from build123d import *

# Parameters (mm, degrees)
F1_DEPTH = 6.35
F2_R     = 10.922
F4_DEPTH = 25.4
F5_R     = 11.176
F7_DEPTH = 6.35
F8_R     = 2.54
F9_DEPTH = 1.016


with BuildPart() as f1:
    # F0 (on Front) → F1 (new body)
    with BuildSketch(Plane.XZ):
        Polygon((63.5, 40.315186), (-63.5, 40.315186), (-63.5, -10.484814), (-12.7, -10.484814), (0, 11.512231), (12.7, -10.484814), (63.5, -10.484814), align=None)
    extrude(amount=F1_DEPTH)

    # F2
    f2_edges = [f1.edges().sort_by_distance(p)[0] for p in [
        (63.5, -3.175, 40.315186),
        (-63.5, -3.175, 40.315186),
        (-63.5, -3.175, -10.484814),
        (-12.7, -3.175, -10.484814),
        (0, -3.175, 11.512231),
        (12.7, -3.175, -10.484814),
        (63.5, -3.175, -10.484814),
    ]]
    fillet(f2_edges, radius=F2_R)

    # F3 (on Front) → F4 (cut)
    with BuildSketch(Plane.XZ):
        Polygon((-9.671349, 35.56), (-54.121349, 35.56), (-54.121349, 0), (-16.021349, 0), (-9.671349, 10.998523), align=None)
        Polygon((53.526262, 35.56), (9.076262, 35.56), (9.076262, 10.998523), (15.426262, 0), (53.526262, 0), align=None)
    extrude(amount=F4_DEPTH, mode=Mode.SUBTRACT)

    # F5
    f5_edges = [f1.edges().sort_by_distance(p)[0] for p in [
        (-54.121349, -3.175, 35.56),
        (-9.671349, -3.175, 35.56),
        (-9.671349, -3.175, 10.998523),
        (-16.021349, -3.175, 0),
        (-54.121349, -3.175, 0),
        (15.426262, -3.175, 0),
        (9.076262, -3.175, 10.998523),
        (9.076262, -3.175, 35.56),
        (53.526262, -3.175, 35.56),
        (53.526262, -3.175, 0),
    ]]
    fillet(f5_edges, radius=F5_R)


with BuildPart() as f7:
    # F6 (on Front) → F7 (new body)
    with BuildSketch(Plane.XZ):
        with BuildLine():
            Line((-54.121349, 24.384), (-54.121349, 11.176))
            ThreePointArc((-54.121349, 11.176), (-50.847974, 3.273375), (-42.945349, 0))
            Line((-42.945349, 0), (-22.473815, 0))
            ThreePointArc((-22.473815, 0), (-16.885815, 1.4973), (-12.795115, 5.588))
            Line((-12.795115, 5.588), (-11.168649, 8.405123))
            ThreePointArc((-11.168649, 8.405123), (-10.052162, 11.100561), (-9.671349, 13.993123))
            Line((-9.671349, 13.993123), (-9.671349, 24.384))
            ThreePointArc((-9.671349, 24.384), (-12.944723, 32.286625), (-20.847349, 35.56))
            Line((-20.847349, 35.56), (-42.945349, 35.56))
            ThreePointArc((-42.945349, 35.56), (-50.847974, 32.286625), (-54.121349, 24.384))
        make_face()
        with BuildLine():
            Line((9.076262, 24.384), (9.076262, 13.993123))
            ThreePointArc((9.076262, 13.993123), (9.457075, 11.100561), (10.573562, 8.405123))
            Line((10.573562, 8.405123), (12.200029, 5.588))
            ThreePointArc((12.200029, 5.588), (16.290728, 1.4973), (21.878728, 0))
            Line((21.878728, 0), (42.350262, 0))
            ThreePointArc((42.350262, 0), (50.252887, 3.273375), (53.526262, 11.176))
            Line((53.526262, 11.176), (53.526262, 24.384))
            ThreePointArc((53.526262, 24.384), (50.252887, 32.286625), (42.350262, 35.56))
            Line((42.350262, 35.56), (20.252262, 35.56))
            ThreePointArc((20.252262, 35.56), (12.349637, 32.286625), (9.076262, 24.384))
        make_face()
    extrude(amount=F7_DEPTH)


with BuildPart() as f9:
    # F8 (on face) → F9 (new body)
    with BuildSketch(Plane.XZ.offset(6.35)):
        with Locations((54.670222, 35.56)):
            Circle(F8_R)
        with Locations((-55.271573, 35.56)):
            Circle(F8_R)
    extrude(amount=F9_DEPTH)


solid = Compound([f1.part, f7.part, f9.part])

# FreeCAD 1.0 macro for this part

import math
import FreeCAD as App
import Part
import Sketcher
from FreeCAD import Vector
Q = App.Units.Quantity


def edges_at(feature, points):
    """Names of the edges that pass closest to the given points."""
    edges = feature.Shape.Edges
    near = lambda p: min(range(len(edges)), key=lambda i: edges[i].distToShape(Part.Vertex(*p))[0])
    return sorted({f"Edge{near(p) + 1}" for p in points})


def add_polygon(sketch, points):
    """Adds a closed chain of lines whose ends are joined by coincident constraints."""
    first, n = sketch.GeometryCount, len(points)
    for a, b in zip(points, points[1:] + points[:1]):
        sketch.addGeometry(Part.LineSegment(App.Vector(*a, 0), App.Vector(*b, 0)), False)
    for i in range(n):
        sketch.addConstraint(Sketcher.Constraint("Coincident", first + i, 2, first + (i + 1) % n, 1))

doc = App.newDocument("Part")
params = doc.addObject("Spreadsheet::Sheet", "Params")
for row, (alias, value) in enumerate([
    ("sketch1_width", "5 in"),
    ("sketch1_width2", "2 in"),
    ("sketch1_length", "1 in"),
    ("pad1_length", "0.25 in"),
    ("fillet_radius", "0.43 in"),
    ("sketch2_width", "1.5 in"),
    ("sketch2_height", "1.4 in"),
    ("sketch2_length", "0.5 in"),
    ("pocket1_length", "1 in"),
    ("fillet2_radius", "0.44 in"),
    ("sketch3_radius", "0.4400001 in"),
    ("sketch3_width", "0.87 in"),
    ("sketch3_height", "0.52 in"),
    ("pad2_length", "0.25 in"),
    ("sketch4_diameter", "0.2 in"),
    ("pad3_length", "0.04 in"),
], start=1):
    params.set(f"A{row}", alias)
    params.set(f"B{row}", "=" + value)
    params.setAlias(f"B{row}", alias)

body = doc.addObject("PartDesign::Body", "Body")

# Sketch on XZ plane
sketch1 = doc.addObject("Sketcher::SketchObject", "Sketch")
body.addObject(sketch1)
sketch1.AttachmentSupport = (doc.XZ_Plane, [""])
sketch1.MapMode = "FlatFace"
add_polygon(sketch1, [(64, 40), (-64, 40), (-64, -10), (-13, -10), (0, 12), (13, -10), (64, -10)])  # lines 0-6
sketch1.addConstraint([
    Sketcher.Constraint("Horizontal", 0),
    Sketcher.Constraint("Vertical", 1),
    Sketcher.Constraint("Horizontal", 2),
    Sketcher.Constraint("Horizontal", 5),
    Sketcher.Constraint("Vertical", 6),
    Sketcher.Constraint("Symmetric", 2, 2, 4, 2, -2),
    Sketcher.Constraint("PointOnObject", 3, 2, -2),
    Sketcher.Constraint("Equal", 2, 5),
    Sketcher.Constraint("Equal", 5, 1),
    Sketcher.Constraint("DistanceX", 0, 2, 0, 1, Q("5 in")),
    Sketcher.Constraint("DistanceX", 2, 1, 2, 2, Q("2 in")),
    Sketcher.Constraint("Distance", 3, Q("1 in")),
    Sketcher.Constraint("DistanceY", -1, 1, 3, 2, 11.512231),
])
sketch1.setExpression("Constraints[16]", "Params.sketch1_width")
sketch1.setExpression("Constraints[17]", "Params.sketch1_width2")
sketch1.setExpression("Constraints[18]", "Params.sketch1_length")
pad1 = doc.addObject("PartDesign::Pad", "Pad")
body.addObject(pad1)
pad1.Profile = sketch1
pad1.setExpression("Length", "Params.pad1_length")
doc.recompute()

fillet = doc.addObject("PartDesign::Fillet", "Fillet")
body.addObject(fillet)
fillet.Base = (pad1, edges_at(pad1, [
    (63.5, -3.175, 40.315),
    (-63.5, -3.175, 40.315),
    (-63.5, -3.175, -10.485),
    (-12.7, -3.175, -10.485),
    (0, -3.175, 11.512),
    (12.7, -3.175, -10.485),
    (63.5, -3.175, -10.485),
]))
fillet.setExpression("Radius", "Params.fillet_radius")

# Sketch on XZ plane
sketch2 = doc.addObject("Sketcher::SketchObject", "Sketch001")
body.addObject(sketch2)
sketch2.AttachmentSupport = (doc.XZ_Plane, [""])
sketch2.MapMode = "FlatFace"
add_polygon(sketch2, [(-10, 36), (-54, 36), (-54, 0), (-16, 0), (-10, 11)])  # lines 0-4
add_polygon(sketch2, [(54, 36), (9, 36), (9, 11), (15, 0), (54, 0)])  # lines 5-9
sketch2.addConstraint([
    Sketcher.Constraint("Horizontal", 0),
    Sketcher.Constraint("Vertical", 1),
    Sketcher.Constraint("Horizontal", 2),
    Sketcher.Constraint("Vertical", 4),
    Sketcher.Constraint("Horizontal", 5),
    Sketcher.Constraint("Vertical", 6),
    Sketcher.Constraint("Horizontal", 8),
    Sketcher.Constraint("Vertical", 9),
    Sketcher.Constraint("PointOnObject", 1, 2, -1),
    Sketcher.Constraint("PointOnObject", 7, 2, -1),
    Sketcher.Constraint("Horizontal", 4, 2, 5, 2),
    Sketcher.Constraint("Horizontal", 3, 2, 6, 2),
    Sketcher.Constraint("Equal", 0, 5),
    Sketcher.Constraint("Equal", 2, 8),
    Sketcher.Constraint("DistanceX", 2, 1, 2, 2, Q("1.5 in")),
    Sketcher.Constraint("DistanceY", 1, 2, 1, 1, Q("1.4 in")),
    Sketcher.Constraint("Angle", 3, Q("60.000001 deg")),
    Sketcher.Constraint("Distance", 3, Q("0.5 in")),
    Sketcher.Constraint("DistanceX", 0, 2, -1, 1, 54.121349),
    Sketcher.Constraint("DistanceX", 4, 2, 5, 2, 18.747611),
])
sketch2.setExpression("Constraints[24]", "Params.sketch2_width")
sketch2.setExpression("Constraints[25]", "Params.sketch2_height")
sketch2.setExpression("Constraints[27]", "Params.sketch2_length")
pocket1 = doc.addObject("PartDesign::Pocket", "Pocket")
body.addObject(pocket1)
pocket1.Profile = sketch2
pocket1.setExpression("Length", "Params.pocket1_length")
pocket1.Reversed = True
doc.recompute()

fillet2 = doc.addObject("PartDesign::Fillet", "Fillet001")
body.addObject(fillet2)
fillet2.Base = (pocket1, edges_at(pocket1, [
    (-54.121, -3.175, 35.56),
    (-9.671, -3.175, 35.56),
    (-9.671, -3.175, 10.999),
    (-16.021, -3.175, 0),
    (-54.121, -3.175, 0),
    (15.426, -3.175, 0),
    (9.076, -3.175, 10.999),
    (9.076, -3.175, 35.56),
    (53.526, -3.175, 35.56),
    (53.526, -3.175, 0),
]))
fillet2.setExpression("Radius", "Params.fillet2_radius")
body2 = doc.addObject("PartDesign::Body", "Body001")
body2.AllowCompound = True

# Sketch on XZ plane
sketch3 = doc.addObject("Sketcher::SketchObject", "Sketch002")
body2.addObject(sketch3)
sketch3.AttachmentSupport = (doc.getObject("XZ_Plane001"), [""])
sketch3.MapMode = "FlatFace"
sketch3.addGeometry([
    Part.LineSegment(Vector(-54.1, 24.4, 0), Vector(-54.1, 11.2, 0)),  # 0
    Part.ArcOfCircle(Part.Circle(Vector(-42.9, 11.2, 0), Vector(0, 0, 1), 11.2), math.radians(-180), math.radians(-90)),  # 1
    Part.LineSegment(Vector(-42.9, 0, 0), Vector(-22.5, 0, 0)),  # 2
    Part.ArcOfCircle(Part.Circle(Vector(-22.5, 11.2, 0), Vector(0, 0, 1), 11.2), math.radians(-90), math.radians(-30)),  # 3
    Part.LineSegment(Vector(-12.8, 5.6, 0), Vector(-11.2, 8.4, 0)),  # 4
    Part.ArcOfCircle(Part.Circle(Vector(-20.8, 14, 0), Vector(0, 0, 1), 11.2), math.radians(-30), math.radians(0)),  # 5
    Part.LineSegment(Vector(-9.7, 14, 0), Vector(-9.7, 24.4, 0)),  # 6
    Part.ArcOfCircle(Part.Circle(Vector(-20.8, 24.4, 0), Vector(0, 0, 1), 11.2), math.radians(0), math.radians(90)),  # 7
    Part.LineSegment(Vector(-20.8, 35.6, 0), Vector(-42.9, 35.6, 0)),  # 8
    Part.ArcOfCircle(Part.Circle(Vector(-42.9, 24.4, 0), Vector(0, 0, 1), 11.2), math.radians(90), math.radians(180)),  # 9
    Part.LineSegment(Vector(9.1, 24.4, 0), Vector(9.1, 14, 0)),  # 10
    Part.ArcOfCircle(Part.Circle(Vector(20.3, 14, 0), Vector(0, 0, 1), 11.2), math.radians(180), math.radians(210)),  # 11
    Part.LineSegment(Vector(10.6, 8.4, 0), Vector(12.2, 5.6, 0)),  # 12
    Part.ArcOfCircle(Part.Circle(Vector(21.9, 11.2, 0), Vector(0, 0, 1), 11.2), math.radians(-150), math.radians(-90)),  # 13
    Part.LineSegment(Vector(21.9, 0, 0), Vector(42.4, 0, 0)),  # 14
    Part.ArcOfCircle(Part.Circle(Vector(42.4, 11.2, 0), Vector(0, 0, 1), 11.2), math.radians(-90), math.radians(0)),  # 15
    Part.LineSegment(Vector(53.5, 11.2, 0), Vector(53.5, 24.4, 0)),  # 16
    Part.ArcOfCircle(Part.Circle(Vector(42.4, 24.4, 0), Vector(0, 0, 1), 11.2), math.radians(0), math.radians(90)),  # 17
    Part.LineSegment(Vector(42.4, 35.6, 0), Vector(20.3, 35.6, 0)),  # 18
    Part.ArcOfCircle(Part.Circle(Vector(20.3, 24.4, 0), Vector(0, 0, 1), 11.2), math.radians(90), math.radians(180)),  # 19
], False)
sketch3.addConstraint([
    Sketcher.Constraint("Tangent", 0, 2, 1, 1),
    Sketcher.Constraint("Tangent", 1, 2, 2, 1),
    Sketcher.Constraint("Tangent", 2, 2, 3, 1),
    Sketcher.Constraint("Tangent", 3, 2, 4, 1),
    Sketcher.Constraint("Tangent", 4, 2, 5, 1),
    Sketcher.Constraint("Tangent", 5, 2, 6, 1),
    Sketcher.Constraint("Tangent", 6, 2, 7, 1),
    Sketcher.Constraint("Tangent", 7, 2, 8, 1),
    Sketcher.Constraint("Tangent", 8, 2, 9, 1),
    Sketcher.Constraint("Tangent", 9, 2, 0, 1),
    Sketcher.Constraint("Tangent", 10, 2, 11, 1),
    Sketcher.Constraint("Tangent", 11, 2, 12, 1),
    Sketcher.Constraint("Tangent", 12, 2, 13, 1),
    Sketcher.Constraint("Tangent", 13, 2, 14, 1),
    Sketcher.Constraint("Tangent", 14, 2, 15, 1),
    Sketcher.Constraint("Tangent", 15, 2, 16, 1),
    Sketcher.Constraint("Tangent", 16, 2, 17, 1),
    Sketcher.Constraint("Tangent", 17, 2, 18, 1),
    Sketcher.Constraint("Tangent", 18, 2, 19, 1),
    Sketcher.Constraint("Tangent", 19, 2, 10, 1),
    Sketcher.Constraint("Vertical", 0),
    Sketcher.Constraint("Horizontal", 2),
    Sketcher.Constraint("Vertical", 6),
    Sketcher.Constraint("Horizontal", 8),
    Sketcher.Constraint("Vertical", 10),
    Sketcher.Constraint("Horizontal", 14),
    Sketcher.Constraint("Vertical", 16),
    Sketcher.Constraint("Horizontal", 18),
    Sketcher.Constraint("Equal", 1, 3),
    Sketcher.Constraint("Equal", 3, 5),
    Sketcher.Constraint("Equal", 5, 7),
    Sketcher.Constraint("Equal", 7, 9),
    Sketcher.Constraint("Equal", 9, 11),
    Sketcher.Constraint("Equal", 11, 15),
    Sketcher.Constraint("Equal", 15, 17),
    Sketcher.Constraint("Equal", 17, 19),
    Sketcher.Constraint("PointOnObject", 1, 2, -1),
    Sketcher.Constraint("PointOnObject", 13, 2, -1),
    Sketcher.Constraint("Horizontal", 5, 3, 11, 3),
    Sketcher.Constraint("Horizontal", 9, 3, 17, 3),
    Sketcher.Constraint("Horizontal", 4, 2, 11, 2),
    Sketcher.Constraint("Horizontal", 3, 2, 12, 2),
    Sketcher.Constraint("Equal", 2, 14),
    Sketcher.Constraint("Radius", 1, Q("0.4400001 in")),
    Sketcher.Constraint("Angle", 4, Q("60.000011 deg")),
    Sketcher.Constraint("DistanceX", 8, 2, 8, 1, Q("0.87 in")),
    Sketcher.Constraint("DistanceY", 0, 2, 0, 1, Q("0.52 in")),
    Sketcher.Constraint("DistanceX", 2, 1, 2, 2, 20.471534),
    Sketcher.Constraint("DistanceX", 5, 3, -1, 1, 20.847348),
    Sketcher.Constraint("DistanceX", -1, 1, 11, 3, 20.252261),
])
sketch3.setExpression("Constraints[43]", "Params.sketch3_radius")
sketch3.setExpression("Constraints[45]", "Params.sketch3_width")
sketch3.setExpression("Constraints[46]", "Params.sketch3_height")
pad2 = doc.addObject("PartDesign::Pad", "Pad001")
body2.addObject(pad2)
pad2.Profile = sketch3
pad2.setExpression("Length", "Params.pad2_length")
body3 = doc.addObject("PartDesign::Body", "Body002")
body3.AllowCompound = True

# Sketch on XZ plane
sketch4 = doc.addObject("Sketcher::SketchObject", "Sketch003")
body3.addObject(sketch4)
sketch4.AttachmentSupport = (doc.getObject("XZ_Plane002"), [""])
sketch4.MapMode = "FlatFace"
sketch4.AttachmentOffset = App.Placement(Vector(0, 0, 0.25 * 25.4), App.Rotation())
sketch4.addGeometry([
    Part.Circle(Vector(54.7, 35.6, 0), Vector(0, 0, 1), 2.5),
    Part.Circle(Vector(-55.3, 35.6, 0), Vector(0, 0, 1), 2.5),
], False)
sketch4.addConstraint([
    Sketcher.Constraint("Equal", 0, 1),
    Sketcher.Constraint("Horizontal", 0, 3, 1, 3),
    Sketcher.Constraint("Diameter", 0, Q("0.2 in")),
    Sketcher.Constraint("DistanceY", -1, 1, 0, 3, Q("1.4 in")),
    Sketcher.Constraint("DistanceX", -1, 1, 0, 3, 54.670222),
    Sketcher.Constraint("DistanceX", 1, 3, -1, 1, 55.271573),
])
sketch4.setExpression("Constraints[2]", "Params.sketch4_diameter")
pad3 = doc.addObject("PartDesign::Pad", "Pad002")
body3.addObject(pad3)
pad3.Profile = sketch4
pad3.setExpression("Length", "Params.pad3_length")

doc.recompute()
